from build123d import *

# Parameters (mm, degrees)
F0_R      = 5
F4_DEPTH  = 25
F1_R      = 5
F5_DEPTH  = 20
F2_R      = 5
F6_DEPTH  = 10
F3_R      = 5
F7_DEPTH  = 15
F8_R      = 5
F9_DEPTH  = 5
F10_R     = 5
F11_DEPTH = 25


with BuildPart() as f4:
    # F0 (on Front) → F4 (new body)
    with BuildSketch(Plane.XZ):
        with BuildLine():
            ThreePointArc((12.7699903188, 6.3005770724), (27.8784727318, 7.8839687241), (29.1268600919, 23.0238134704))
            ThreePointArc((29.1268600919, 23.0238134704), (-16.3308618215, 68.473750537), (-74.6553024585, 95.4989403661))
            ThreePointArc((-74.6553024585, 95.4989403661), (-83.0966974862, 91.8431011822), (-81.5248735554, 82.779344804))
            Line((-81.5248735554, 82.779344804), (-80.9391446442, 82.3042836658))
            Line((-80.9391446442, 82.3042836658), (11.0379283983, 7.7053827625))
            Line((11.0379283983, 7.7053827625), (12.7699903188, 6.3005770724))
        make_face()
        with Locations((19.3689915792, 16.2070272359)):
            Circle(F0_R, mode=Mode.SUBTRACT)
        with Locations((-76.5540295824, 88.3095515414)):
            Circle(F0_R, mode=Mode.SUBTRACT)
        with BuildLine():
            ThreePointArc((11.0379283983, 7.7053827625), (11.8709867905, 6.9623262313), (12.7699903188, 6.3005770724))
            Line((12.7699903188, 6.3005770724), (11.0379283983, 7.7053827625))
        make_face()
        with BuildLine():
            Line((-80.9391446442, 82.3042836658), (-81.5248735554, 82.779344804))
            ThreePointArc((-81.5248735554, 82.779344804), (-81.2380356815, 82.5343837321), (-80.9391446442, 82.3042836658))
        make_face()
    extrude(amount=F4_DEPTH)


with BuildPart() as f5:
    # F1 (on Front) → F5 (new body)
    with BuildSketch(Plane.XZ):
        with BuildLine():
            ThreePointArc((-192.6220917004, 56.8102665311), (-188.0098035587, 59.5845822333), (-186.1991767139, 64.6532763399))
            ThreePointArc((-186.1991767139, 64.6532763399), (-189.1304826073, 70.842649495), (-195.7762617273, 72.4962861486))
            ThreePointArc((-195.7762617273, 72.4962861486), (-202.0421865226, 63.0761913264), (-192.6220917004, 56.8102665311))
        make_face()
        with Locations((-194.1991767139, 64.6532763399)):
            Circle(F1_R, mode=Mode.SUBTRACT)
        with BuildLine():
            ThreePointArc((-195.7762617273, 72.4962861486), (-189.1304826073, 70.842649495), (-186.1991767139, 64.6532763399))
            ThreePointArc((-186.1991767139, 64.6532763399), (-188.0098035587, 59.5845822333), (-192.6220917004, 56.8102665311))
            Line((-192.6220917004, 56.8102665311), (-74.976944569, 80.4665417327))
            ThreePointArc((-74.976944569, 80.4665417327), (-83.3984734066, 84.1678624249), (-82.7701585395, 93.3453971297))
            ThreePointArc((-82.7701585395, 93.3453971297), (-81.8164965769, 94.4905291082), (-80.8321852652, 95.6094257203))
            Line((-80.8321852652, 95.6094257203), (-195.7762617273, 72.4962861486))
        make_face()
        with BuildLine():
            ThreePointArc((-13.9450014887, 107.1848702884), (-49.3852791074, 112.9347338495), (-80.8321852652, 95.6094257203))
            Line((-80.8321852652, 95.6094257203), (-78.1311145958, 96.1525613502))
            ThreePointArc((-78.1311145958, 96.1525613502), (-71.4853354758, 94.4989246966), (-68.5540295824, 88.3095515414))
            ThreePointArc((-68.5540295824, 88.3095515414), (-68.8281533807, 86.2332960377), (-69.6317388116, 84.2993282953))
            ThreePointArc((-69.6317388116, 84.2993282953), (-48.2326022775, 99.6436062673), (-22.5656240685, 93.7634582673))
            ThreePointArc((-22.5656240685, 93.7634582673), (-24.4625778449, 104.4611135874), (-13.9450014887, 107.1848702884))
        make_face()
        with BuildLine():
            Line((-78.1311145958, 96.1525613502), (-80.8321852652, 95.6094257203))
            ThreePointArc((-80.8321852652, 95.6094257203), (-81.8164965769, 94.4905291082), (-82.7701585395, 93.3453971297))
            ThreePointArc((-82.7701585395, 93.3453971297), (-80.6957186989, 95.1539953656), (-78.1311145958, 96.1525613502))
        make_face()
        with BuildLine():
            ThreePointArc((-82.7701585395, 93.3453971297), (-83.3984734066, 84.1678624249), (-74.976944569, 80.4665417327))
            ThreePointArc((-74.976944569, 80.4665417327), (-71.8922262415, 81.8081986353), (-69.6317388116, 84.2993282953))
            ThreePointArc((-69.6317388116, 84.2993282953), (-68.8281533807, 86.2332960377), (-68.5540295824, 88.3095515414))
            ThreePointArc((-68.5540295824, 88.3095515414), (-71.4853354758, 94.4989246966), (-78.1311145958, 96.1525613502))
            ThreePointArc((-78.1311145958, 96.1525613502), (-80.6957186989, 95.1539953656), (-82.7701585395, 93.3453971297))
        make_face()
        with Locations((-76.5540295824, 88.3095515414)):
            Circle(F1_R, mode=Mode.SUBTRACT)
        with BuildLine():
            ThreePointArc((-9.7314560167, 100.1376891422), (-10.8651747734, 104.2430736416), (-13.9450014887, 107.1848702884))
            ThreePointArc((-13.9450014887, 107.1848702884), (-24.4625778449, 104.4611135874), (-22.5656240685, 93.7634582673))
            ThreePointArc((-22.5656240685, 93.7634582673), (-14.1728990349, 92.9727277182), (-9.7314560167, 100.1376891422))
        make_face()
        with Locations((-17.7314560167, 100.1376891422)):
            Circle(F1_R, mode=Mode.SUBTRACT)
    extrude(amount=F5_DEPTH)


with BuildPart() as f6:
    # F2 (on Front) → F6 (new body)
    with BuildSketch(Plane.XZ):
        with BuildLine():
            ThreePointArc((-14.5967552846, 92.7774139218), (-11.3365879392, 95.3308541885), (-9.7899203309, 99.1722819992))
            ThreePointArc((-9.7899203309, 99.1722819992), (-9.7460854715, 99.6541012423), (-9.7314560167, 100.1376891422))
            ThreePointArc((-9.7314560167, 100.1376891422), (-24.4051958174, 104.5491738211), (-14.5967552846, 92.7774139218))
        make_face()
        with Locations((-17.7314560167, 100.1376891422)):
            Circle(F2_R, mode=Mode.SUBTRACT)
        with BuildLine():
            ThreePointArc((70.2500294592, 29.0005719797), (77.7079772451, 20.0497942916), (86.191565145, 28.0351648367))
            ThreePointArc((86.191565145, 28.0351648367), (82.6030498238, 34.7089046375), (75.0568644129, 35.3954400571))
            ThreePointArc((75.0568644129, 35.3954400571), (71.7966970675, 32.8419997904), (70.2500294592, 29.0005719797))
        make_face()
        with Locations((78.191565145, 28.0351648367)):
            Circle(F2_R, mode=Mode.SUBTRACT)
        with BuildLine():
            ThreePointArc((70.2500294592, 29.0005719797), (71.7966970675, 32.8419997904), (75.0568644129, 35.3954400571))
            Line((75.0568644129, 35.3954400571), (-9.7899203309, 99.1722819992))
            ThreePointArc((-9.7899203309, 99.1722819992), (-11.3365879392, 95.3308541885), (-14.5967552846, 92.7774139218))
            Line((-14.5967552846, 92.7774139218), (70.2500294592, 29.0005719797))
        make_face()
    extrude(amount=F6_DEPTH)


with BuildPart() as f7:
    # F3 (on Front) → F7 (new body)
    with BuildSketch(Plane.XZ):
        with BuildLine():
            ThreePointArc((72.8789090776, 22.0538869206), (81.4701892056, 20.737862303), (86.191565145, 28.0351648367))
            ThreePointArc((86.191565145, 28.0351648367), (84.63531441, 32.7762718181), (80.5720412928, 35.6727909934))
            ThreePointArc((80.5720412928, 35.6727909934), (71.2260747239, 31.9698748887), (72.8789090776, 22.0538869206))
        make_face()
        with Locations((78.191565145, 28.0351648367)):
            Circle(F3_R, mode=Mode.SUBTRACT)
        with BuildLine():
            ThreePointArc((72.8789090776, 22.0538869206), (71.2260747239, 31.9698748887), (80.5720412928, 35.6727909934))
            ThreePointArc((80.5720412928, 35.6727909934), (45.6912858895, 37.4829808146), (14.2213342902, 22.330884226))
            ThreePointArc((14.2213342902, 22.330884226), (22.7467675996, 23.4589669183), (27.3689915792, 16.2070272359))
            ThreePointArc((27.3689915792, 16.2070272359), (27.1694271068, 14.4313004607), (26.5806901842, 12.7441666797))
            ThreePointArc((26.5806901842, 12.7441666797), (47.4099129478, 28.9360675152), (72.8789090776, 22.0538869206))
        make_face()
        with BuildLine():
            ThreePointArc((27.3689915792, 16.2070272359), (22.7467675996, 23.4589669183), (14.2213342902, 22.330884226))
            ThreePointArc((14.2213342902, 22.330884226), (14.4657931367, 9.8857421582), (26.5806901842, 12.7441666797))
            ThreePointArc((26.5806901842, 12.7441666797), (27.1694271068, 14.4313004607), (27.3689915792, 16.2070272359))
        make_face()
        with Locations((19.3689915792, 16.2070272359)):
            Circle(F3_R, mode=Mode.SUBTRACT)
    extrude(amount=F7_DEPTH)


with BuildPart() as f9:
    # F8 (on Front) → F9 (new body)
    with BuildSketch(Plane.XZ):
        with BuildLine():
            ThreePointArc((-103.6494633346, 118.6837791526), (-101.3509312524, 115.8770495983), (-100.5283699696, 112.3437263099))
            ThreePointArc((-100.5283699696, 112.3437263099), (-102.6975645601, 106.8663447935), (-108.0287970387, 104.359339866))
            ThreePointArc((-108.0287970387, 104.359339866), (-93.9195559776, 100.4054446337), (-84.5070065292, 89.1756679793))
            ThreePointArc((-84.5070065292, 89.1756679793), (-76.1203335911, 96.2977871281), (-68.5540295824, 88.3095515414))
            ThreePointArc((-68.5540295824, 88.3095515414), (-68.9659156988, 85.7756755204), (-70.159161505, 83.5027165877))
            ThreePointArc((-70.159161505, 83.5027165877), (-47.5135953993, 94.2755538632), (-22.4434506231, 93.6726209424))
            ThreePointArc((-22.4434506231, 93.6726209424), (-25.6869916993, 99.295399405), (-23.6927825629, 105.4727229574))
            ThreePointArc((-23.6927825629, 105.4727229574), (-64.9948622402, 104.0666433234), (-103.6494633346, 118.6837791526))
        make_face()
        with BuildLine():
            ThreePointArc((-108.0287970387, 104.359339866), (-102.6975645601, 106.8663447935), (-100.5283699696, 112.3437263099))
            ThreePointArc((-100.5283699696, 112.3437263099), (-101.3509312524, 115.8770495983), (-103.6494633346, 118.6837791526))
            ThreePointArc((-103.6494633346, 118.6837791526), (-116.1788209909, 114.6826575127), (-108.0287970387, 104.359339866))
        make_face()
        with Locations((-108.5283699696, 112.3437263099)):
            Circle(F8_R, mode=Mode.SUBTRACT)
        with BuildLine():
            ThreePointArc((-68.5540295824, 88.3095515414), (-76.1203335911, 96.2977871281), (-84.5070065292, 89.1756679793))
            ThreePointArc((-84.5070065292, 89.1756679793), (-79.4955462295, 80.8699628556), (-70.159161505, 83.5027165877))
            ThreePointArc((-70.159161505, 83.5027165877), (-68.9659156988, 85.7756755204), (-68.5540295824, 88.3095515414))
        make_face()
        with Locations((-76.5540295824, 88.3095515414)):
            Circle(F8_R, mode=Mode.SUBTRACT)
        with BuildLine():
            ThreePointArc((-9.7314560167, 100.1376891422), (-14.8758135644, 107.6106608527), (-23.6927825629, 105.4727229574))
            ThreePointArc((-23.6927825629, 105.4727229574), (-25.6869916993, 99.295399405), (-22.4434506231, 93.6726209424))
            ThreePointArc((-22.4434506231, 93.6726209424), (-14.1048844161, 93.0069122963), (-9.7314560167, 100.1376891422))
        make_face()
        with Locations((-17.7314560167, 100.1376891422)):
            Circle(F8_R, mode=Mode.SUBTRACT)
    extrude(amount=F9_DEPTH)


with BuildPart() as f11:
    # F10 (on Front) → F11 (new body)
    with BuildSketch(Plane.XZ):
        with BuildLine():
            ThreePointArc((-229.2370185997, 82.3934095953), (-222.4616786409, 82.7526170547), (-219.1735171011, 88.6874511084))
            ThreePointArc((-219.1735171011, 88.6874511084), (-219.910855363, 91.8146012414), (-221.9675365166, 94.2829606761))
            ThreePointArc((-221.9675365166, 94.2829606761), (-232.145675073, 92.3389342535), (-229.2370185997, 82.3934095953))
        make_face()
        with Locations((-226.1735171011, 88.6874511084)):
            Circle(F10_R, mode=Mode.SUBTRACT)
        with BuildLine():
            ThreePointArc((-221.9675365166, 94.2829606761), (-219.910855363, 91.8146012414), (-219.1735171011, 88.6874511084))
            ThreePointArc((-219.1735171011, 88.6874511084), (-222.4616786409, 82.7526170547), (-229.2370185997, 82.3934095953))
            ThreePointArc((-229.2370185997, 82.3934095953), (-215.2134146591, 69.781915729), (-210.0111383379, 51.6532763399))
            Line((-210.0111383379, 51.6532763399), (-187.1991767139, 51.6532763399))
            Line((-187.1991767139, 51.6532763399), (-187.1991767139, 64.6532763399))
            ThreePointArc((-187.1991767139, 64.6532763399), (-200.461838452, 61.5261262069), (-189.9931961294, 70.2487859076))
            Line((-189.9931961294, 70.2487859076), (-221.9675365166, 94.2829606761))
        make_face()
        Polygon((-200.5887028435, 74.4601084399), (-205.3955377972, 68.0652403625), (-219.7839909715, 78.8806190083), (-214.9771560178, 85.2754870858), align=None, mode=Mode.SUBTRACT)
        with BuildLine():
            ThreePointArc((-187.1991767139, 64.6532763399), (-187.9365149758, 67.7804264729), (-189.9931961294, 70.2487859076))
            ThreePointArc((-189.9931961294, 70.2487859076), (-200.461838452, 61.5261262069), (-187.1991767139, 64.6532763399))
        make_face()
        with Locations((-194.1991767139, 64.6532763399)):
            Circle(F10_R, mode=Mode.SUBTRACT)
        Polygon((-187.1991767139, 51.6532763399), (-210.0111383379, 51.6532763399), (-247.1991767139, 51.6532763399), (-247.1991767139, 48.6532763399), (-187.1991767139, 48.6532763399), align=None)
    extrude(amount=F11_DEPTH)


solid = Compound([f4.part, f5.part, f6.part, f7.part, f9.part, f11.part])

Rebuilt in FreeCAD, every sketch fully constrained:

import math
import FreeCAD as App
import Part
import Sketcher

V = App.Vector


def add_polygon(sketch, points):
    """Adds a closed chain of lines whose ends are joined by coincident constraints."""
    first, n = sketch.GeometryCount, len(points)
    for a, b in zip(points, points[1:] + points[:1]):
        sketch.addGeometry(Part.LineSegment(App.Vector(*a, 0), App.Vector(*b, 0)), False)
    for i in range(n):
        sketch.addConstraint(Sketcher.Constraint("Coincident", first + i, 2, first + (i + 1) % n, 1))

doc = App.newDocument("Part")
body = doc.addObject("PartDesign::Body", "Body")

sketch1 = body.newObject("Sketcher::SketchObject", "Sketch")
sketch1.AttachmentSupport = (doc.getObject("XZ_Plane"), [""])
sketch1.MapMode = "FlatFace"
sketch1.addGeometry(Part.ArcOfCircle(Part.Circle(V(19.368992, 16.207027, 0), V(0, 0, 1), 11.903133), math.radians(-123.668845), math.radians(34.93791)), False)
sketch1.addGeometry(Part.ArcOfCircle(Part.Circle(V(-121.606274, -82.277416, 0), V(0, 0, 1), 183.871767), math.radians(34.93791), math.radians(75.205895)), False)
sketch1.addGeometry(Part.ArcOfCircle(Part.Circle(V(-76.55403, 88.309552, 0), V(0, 0, 1), 7.435891), math.radians(75.205895), math.radians(228.049111)), False)
sketch1.addGeometry(Part.ArcOfCircle(Part.Circle(V(-76.55403, 88.309552, 0), V(0, 0, 1), 7.435891), math.radians(-131.950889), math.radians(-126.137345)), False)
sketch1.addGeometry(Part.LineSegment(V(-80.939145, 82.304284, 0), V(11.037928, 7.705383, 0)), False)
sketch1.addGeometry(Part.ArcOfCircle(Part.Circle(V(19.368992, 16.207027, 0), V(0, 0, 1), 11.903133), math.radians(-134.419389), math.radians(-123.668845)), False)
sketch1.addGeometry(Part.Circle(V(19.368992, 16.207027, 0), V(0, 0, 1), 5), False)
sketch1.addGeometry(Part.Circle(V(-76.55403, 88.309552, 0), V(0, 0, 1), 5), False)
sketch1.addConstraint(Sketcher.Constraint("Tangent", 0, 2, 1, 1))
sketch1.addConstraint(Sketcher.Constraint("Tangent", 1, 2, 2, 1))
sketch1.addConstraint(Sketcher.Constraint("Tangent", 2, 2, 3, 1))
sketch1.addConstraint(Sketcher.Constraint("Coincident", 3, 2, 4, 1))
sketch1.addConstraint(Sketcher.Constraint("Coincident", 4, 2, 5, 1))
sketch1.addConstraint(Sketcher.Constraint("Tangent", 5, 2, 0, 1))
sketch1.addConstraint(Sketcher.Constraint("Coincident", 6, 3, 0, 3))
sketch1.addConstraint(Sketcher.Constraint("Coincident", 7, 3, 2, 3))
sketch1.addConstraint(Sketcher.Constraint("Equal", 2, 3))
sketch1.addConstraint(Sketcher.Constraint("Equal", 0, 5))
sketch1.addConstraint(Sketcher.Constraint("Equal", 6, 7))
sketch1.addConstraint(Sketcher.Constraint("Diameter", 6, 10.0))
sketch1.addConstraint(Sketcher.Constraint("Radius", 2, 7.435891))
sketch1.addConstraint(Sketcher.Constraint("Radius", 0, 11.903133))
sketch1.addConstraint(Sketcher.Constraint("Radius", 1, 183.871767))
sketch1.addConstraint(Sketcher.Constraint("DistanceX", 5, 2, 0, 3, 6.599001))
sketch1.addConstraint(Sketcher.Constraint("DistanceY", 4, 2, 3, 2, 74.598901))
sketch1.addConstraint(Sketcher.Constraint("DistanceX", -1, 1, 0, 3, 19.368992))
sketch1.addConstraint(Sketcher.Constraint("DistanceX", 2, 3, -1, 1, 76.55403))
sketch1.addConstraint(Sketcher.Constraint("DistanceY", -1, 1, 2, 3, 88.309552))
sketch1.addConstraint(Sketcher.Constraint("DistanceX", -1, 1, 0, 2, 29.12686))
sketch1.addConstraint(Sketcher.Constraint("DistanceX", -1, 1, 4, 2, 11.037928))
sketch1.addConstraint(Sketcher.Constraint("DistanceX", 2, 2, 1, 2, 6.869571))
pad1 = body.newObject("PartDesign::Pad", "Pad")
pad1.Profile = sketch1
pad1.Length = 25
body2 = doc.addObject("PartDesign::Body", "Body001")

sketch2 = body2.newObject("Sketcher::SketchObject", "Sketch001")
sketch2.AttachmentSupport = (doc.getObject("XZ_Plane001"), [""])
sketch2.MapMode = "FlatFace"
sketch2.addGeometry(Part.ArcOfCircle(Part.Circle(V(-194.199177, 64.653276, 0), V(0, 0, 1), 8), math.radians(101.369508), math.radians(281.369508)), False)
sketch2.addGeometry(Part.LineSegment(V(-192.622092, 56.810267, 0), V(-74.976945, 80.466542, 0)), False)
sketch2.addGeometry(Part.ArcOfCircle(Part.Circle(V(-76.55403, 88.309552, 0), V(0, 0, 1), 8), math.radians(-78.630492), math.radians(-30.084582)), False)
sketch2.addGeometry(Part.ArcOfCircle(Part.Circle(V(-41.918859, 68.244696, 0), V(0, 0, 1), 32.027409), math.radians(52.823598), math.radians(149.915418)), False)
sketch2.addGeometry(Part.ArcOfCircle(Part.Circle(V(-17.731456, 100.137689, 0), V(0, 0, 1), 8), math.radians(-127.176402), math.radians(0)), False)
sketch2.addGeometry(Part.ArcOfCircle(Part.Circle(V(-17.731456, 100.137689, 0), V(0, 0, 1), 8), math.radians(0), math.radians(61.750836)), False)
sketch2.addGeometry(Part.ArcOfCircle(Part.Circle(V(-39.998603, 58.695063, 0), V(0, 0, 1), 55.045905), math.radians(61.750836), math.radians(137.885797)), False)
sketch2.addGeometry(Part.LineSegment(V(-80.832185, 95.609426, 0), V(-195.776262, 72.496286, 0)), False)
sketch2.addGeometry(Part.Circle(V(-194.199177, 64.653276, 0), V(0, 0, 1), 5), False)
sketch2.addGeometry(Part.Circle(V(-76.55403, 88.309552, 0), V(0, 0, 1), 5), False)
sketch2.addGeometry(Part.Circle(V(-17.731456, 100.137689, 0), V(0, 0, 1), 5), False)
sketch2.addConstraint(Sketcher.Constraint("Tangent", 0, 2, 1, 1))
sketch2.addConstraint(Sketcher.Constraint("Tangent", 1, 2, 2, 1))
sketch2.addConstraint(Sketcher.Constraint("Tangent", 2, 2, 3, 2))
sketch2.addConstraint(Sketcher.Constraint("Tangent", 3, 1, 4, 1))
sketch2.addConstraint(Sketcher.Constraint("Tangent", 4, 2, 5, 1))
sketch2.addConstraint(Sketcher.Constraint("Tangent", 5, 2, 6, 1))
sketch2.addConstraint(Sketcher.Constraint("Coincident", 6, 2, 7, 1))
sketch2.addConstraint(Sketcher.Constraint("Tangent", 7, 2, 0, 1))
sketch2.addConstraint(Sketcher.Constraint("Coincident", 8, 3, 0, 3))
sketch2.addConstraint(Sketcher.Constraint("Coincident", 9, 3, 2, 3))
sketch2.addConstraint(Sketcher.Constraint("Coincident", 10, 3, 4, 3))
sketch2.addConstraint(Sketcher.Constraint("Equal", 0, 2))
sketch2.addConstraint(Sketcher.Constraint("Equal", 2, 4))
sketch2.addConstraint(Sketcher.Constraint("Equal", 4, 5))
sketch2.addConstraint(Sketcher.Constraint("Equal", 8, 9))
sketch2.addConstraint(Sketcher.Constraint("Equal", 9, 10))
sketch2.addConstraint(Sketcher.Constraint("Parallel", 1, 7))
sketch2.addConstraint(Sketcher.Constraint("Horizontal", 10, 3, 4, 2))
sketch2.addConstraint(Sketcher.Constraint("Diameter", 8, 10.0))
sketch2.addConstraint(Sketcher.Constraint("Radius", 0, 8.0))
sketch2.addConstraint(Sketcher.Constraint("Distance", 1, 120.0))
sketch2.addConstraint(Sketcher.Constraint("Radius", 3, 32.027409))
sketch2.addConstraint(Sketcher.Constraint("DistanceX", 5, 2, -1, 1, 13.945001))
sketch2.addConstraint(Sketcher.Constraint("Radius", 6, 55.045905))
sketch2.addConstraint(Sketcher.Constraint("DistanceX", 2, 3, -1, 1, 76.55403))
sketch2.addConstraint(Sketcher.Constraint("DistanceY", -1, 1, 2, 3, 88.309552))
sketch2.addConstraint(Sketcher.Constraint("DistanceX", 3, 3, -1, 1, 41.918859))
sketch2.addConstraint(Sketcher.Constraint("DistanceY", -1, 1, 4, 3, 100.137689))
sketch2.addConstraint(Sketcher.Constraint("DistanceX", 0, 2, -1, 1, 192.622092))
pad2 = body2.newObject("PartDesign::Pad", "Pad001")
pad2.Profile = sketch2
pad2.Length = 20
body3 = doc.addObject("PartDesign::Body", "Body002")

sketch3 = body3.newObject("Sketcher::SketchObject", "Sketch002")
sketch3.AttachmentSupport = (doc.getObject("XZ_Plane002"), [""])
sketch3.MapMode = "FlatFace"
sketch3.addGeometry(Part.ArcOfCircle(Part.Circle(V(-17.731456, 100.137689, 0), V(0, 0, 1), 8), math.radians(0), math.radians(293.068888)), False)
sketch3.addGeometry(Part.LineSegment(V(-14.596755, 92.777414, 0), V(70.250029, 29.000572, 0)), False)
sketch3.addGeometry(Part.ArcOfCircle(Part.Circle(V(78.191565, 28.035165, 0), V(0, 0, 1), 8), math.radians(173.068888), math.radians(360)), False)
sketch3.addGeometry(Part.ArcOfCircle(Part.Circle(V(78.191565, 28.035165, 0), V(0, 0, 1), 8), math.radians(0), math.radians(113.068888)), False)
sketch3.addGeometry(Part.LineSegment(V(75.056864, 35.39544, 0), V(-9.78992, 99.172282, 0)), False)
sketch3.addGeometry(Part.ArcOfCircle(Part.Circle(V(-17.731456, 100.137689, 0), V(0, 0, 1), 8), math.radians(-6.931112), math.radians(0)), False)
sketch3.addGeometry(Part.Circle(V(-17.731456, 100.137689, 0), V(0, 0, 1), 5), False)
sketch3.addGeometry(Part.Circle(V(78.191565, 28.035165, 0), V(0, 0, 1), 5), False)
sketch3.addConstraint(Sketcher.Constraint("Coincident", 0, 2, 1, 1))
sketch3.addConstraint(Sketcher.Constraint("Coincident", 1, 2, 2, 1))
sketch3.addConstraint(Sketcher.Constraint("Tangent", 2, 2, 3, 1))
sketch3.addConstraint(Sketcher.Constraint("Coincident", 3, 2, 4, 1))
sketch3.addConstraint(Sketcher.Constraint("Coincident", 4, 2, 5, 1))
sketch3.addConstraint(Sketcher.Constraint("Tangent", 5, 2, 0, 1))
sketch3.addConstraint(Sketcher.Constraint("Coincident", 6, 3, 0, 3))
sketch3.addConstraint(Sketcher.Constraint("Coincident", 7, 3, 2, 3))
sketch3.addConstraint(Sketcher.Constraint("Equal", 0, 2))
sketch3.addConstraint(Sketcher.Constraint("Equal", 2, 3))
sketch3.addConstraint(Sketcher.Constraint("Equal", 3, 5))
sketch3.addConstraint(Sketcher.Constraint("Equal", 6, 7))
sketch3.addConstraint(Sketcher.Constraint("Parallel", 1, 4))
sketch3.addConstraint(Sketcher.Constraint("Horizontal", 7, 3, 2, 2))
sketch3.addConstraint(Sketcher.Constraint("Horizontal", 6, 3, 5, 2))
sketch3.addConstraint(Sketcher.Constraint("Equal", 1, 4))
sketch3.addConstraint(Sketcher.Constraint("Diameter", 6, 10.0))
sketch3.addConstraint(Sketcher.Constraint("Radius", 0, 8.0))
sketch3.addConstraint(Sketcher.Constraint("DistanceX", 5, 3, 0, 2, 3.134701))
sketch3.addConstraint(Sketcher.Constraint("DistanceY", -1, 1, 0, 3, 100.137689))
sketch3.addConstraint(Sketcher.Constraint("DistanceX", -1, 1, 1, 2, 70.250029))
sketch3.addConstraint(Sketcher.Constraint("DistanceY", -1, 1, 1, 2, 29.000572))
sketch3.addConstraint(Sketcher.Constraint("DistanceY", -1, 1, 3, 2, 35.39544))
sketch3.addConstraint(Sketcher.Constraint("DistanceX", 4, 2, -1, 1, 9.78992))
pad3 = body3.newObject("PartDesign::Pad", "Pad002")
pad3.Profile = sketch3
pad3.Length = 10
body4 = doc.addObject("PartDesign::Body", "Body003")

sketch4 = body4.newObject("Sketcher::SketchObject", "Sketch003")
sketch4.AttachmentSupport = (doc.getObject("XZ_Plane003"), [""])
sketch4.MapMode = "FlatFace"
sketch4.addGeometry(Part.ArcOfCircle(Part.Circle(V(78.191565, 28.035165, 0), V(0, 0, 1), 8), math.radians(-131.611938), math.radians(0)), False)
sketch4.addGeometry(Part.ArcOfCircle(Part.Circle(V(78.191565, 28.035165, 0), V(0, 0, 1), 8), math.radians(0), math.radians(72.688919)), False)
sketch4.addGeometry(Part.ArcOfCircle(Part.Circle(V(59.59124, -31.642952, 0), V(0, 0, 1), 70.509597), math.radians(72.688919), math.radians(130.050097)), False)
sketch4.addGeometry(Part.ArcOfCircle(Part.Circle(V(19.368992, 16.207027, 0), V(0, 0, 1), 8), math.radians(130.050097), math.radians(334.350954)), False)
sketch4.addGeometry(Part.ArcOfCircle(Part.Circle(V(53.239852, -0.056834, 0), V(0, 0, 1), 29.57324), math.radians(48.388062), math.radians(154.350954)), False)
sketch4.addGeometry(Part.Circle(V(19.368992, 16.207027, 0), V(0, 0, 1), 5), False)
sketch4.addGeometry(Part.Circle(V(78.191565, 28.035165, 0), V(0, 0, 1), 5), False)
sketch4.addConstraint(Sketcher.Constraint("Tangent", 0, 2, 1, 1))
sketch4.addConstraint(Sketcher.Constraint("Tangent", 1, 2, 2, 1))
sketch4.addConstraint(Sketcher.Constraint("Tangent", 2, 2, 3, 1))
sketch4.addConstraint(Sketcher.Constraint("Tangent", 3, 2, 4, 2))
sketch4.addConstraint(Sketcher.Constraint("Tangent", 4, 1, 0, 1))
sketch4.addConstraint(Sketcher.Constraint("Coincident", 5, 3, 3, 3))
sketch4.addConstraint(Sketcher.Constraint("Coincident", 6, 3, 0, 3))
sketch4.addConstraint(Sketcher.Constraint("Equal", 0, 1))
sketch4.addConstraint(Sketcher.Constraint("Equal", 1, 3))
sketch4.addConstraint(Sketcher.Constraint("Equal", 5, 6))
sketch4.addConstraint(Sketcher.Constraint("Horizontal", 6, 3, 0, 2))
sketch4.addConstraint(Sketcher.Constraint("Diameter", 5, 10.0))
sketch4.addConstraint(Sketcher.Constraint("Radius", 0, 8.0))
sketch4.addConstraint(Sketcher.Constraint("Radius", 4, 29.57324))
sketch4.addConstraint(Sketcher.Constraint("Radius", 2, 70.509597))
sketch4.addConstraint(Sketcher.Constraint("DistanceY", 4, 3, 0, 3, 28.091999))
sketch4.addConstraint(Sketcher.Constraint("DistanceY", 4, 3, 3, 2, 12.801001))
sketch4.addConstraint(Sketcher.Constraint("DistanceX", -1, 1, 2, 3, 59.59124))
sketch4.addConstraint(Sketcher.Constraint("DistanceY", 2, 3, -1, 1, 31.642952))
pad4 = body4.newObject("PartDesign::Pad", "Pad003")
pad4.Profile = sketch4
pad4.Length = 15
body5 = doc.addObject("PartDesign::Body", "Body004")

sketch5 = body5.newObject("Sketcher::SketchObject", "Sketch004")
sketch5.AttachmentSupport = (doc.getObject("XZ_Plane004"), [""])
sketch5.MapMode = "FlatFace"
sketch5.addGeometry(Part.ArcOfCircle(Part.Circle(V(-107.36534, 79.575904, 0), V(0, 0, 1), 24.792315), math.radians(22.780838), math.radians(91.533452)), False)
sketch5.addGeometry(Part.ArcOfCircle(Part.Circle(V(-76.55403, 88.309552, 0), V(0, 0, 1), 8), math.radians(173.784716), math.radians(323.068888)), False)
sketch5.addGeometry(Part.ArcOfCircle(Part.Circle(V(-36.243025, 41.395679, 0), V(0, 0, 1), 54.067614), math.radians(75.212898), math.radians(128.850551)), False)
sketch5.addGeometry(Part.ArcOfCircle(Part.Circle(V(-17.731456, 100.137689, 0), V(0, 0, 1), 8), math.radians(-126.086029), math.radians(0)), False)
sketch5.addGeometry(Part.ArcOfCircle(Part.Circle(V(-17.731456, 100.137689, 0), V(0, 0, 1), 8), math.radians(0), math.radians(138.173343)), False)
sketch5.addGeometry(Part.ArcOfCircle(Part.Circle(V(-47.852028, 207.819449, 0), V(0, 0, 1), 105.159505), math.radians(-122.045876), math.radians(-76.718291)), False)
sketch5.addGeometry(Part.ArcOfCircle(Part.Circle(V(-108.52837, 112.343726, 0), V(0, 0, 1), 8), math.radians(52.420379), math.radians(273.580257)), False)
sketch5.addGeometry(Part.Circle(V(-76.55403, 88.309552, 0), V(0, 0, 1), 5), False)
sketch5.addGeometry(Part.Circle(V(-17.731456, 100.137689, 0), V(0, 0, 1), 5), False)
sketch5.addGeometry(Part.Circle(V(-108.52837, 112.343726, 0), V(0, 0, 1), 5), False)
sketch5.addConstraint(Sketcher.Constraint("Coincident", 0, 1, 1, 1))
sketch5.addConstraint(Sketcher.Constraint("Coincident", 1, 2, 2, 2))
sketch5.addConstraint(Sketcher.Constraint("Coincident", 2, 1, 3, 1))
sketch5.addConstraint(Sketcher.Constraint("Tangent", 3, 2, 4, 1))
sketch5.addConstraint(Sketcher.Constraint("Coincident", 4, 2, 5, 2))
sketch5.addConstraint(Sketcher.Constraint("Coincident", 5, 1, 6, 1))
sketch5.addConstraint(Sketcher.Constraint("Coincident", 6, 2, 0, 2))
sketch5.addConstraint(Sketcher.Constraint("Coincident", 7, 3, 1, 3))
sketch5.addConstraint(Sketcher.Constraint("Coincident", 8, 3, 3, 3))
sketch5.addConstraint(Sketcher.Constraint("Coincident", 9, 3, 6, 3))
sketch5.addConstraint(Sketcher.Constraint("Equal", 1, 3))
sketch5.addConstraint(Sketcher.Constraint("Equal", 3, 4))
sketch5.addConstraint(Sketcher.Constraint("Equal", 4, 6))
sketch5.addConstraint(Sketcher.Constraint("Equal", 7, 8))
sketch5.addConstraint(Sketcher.Constraint("Equal", 8, 9))
sketch5.addConstraint(Sketcher.Constraint("Horizontal", 8, 3, 3, 2))
sketch5.addConstraint(Sketcher.Constraint("Diameter", 7, 10.0))
sketch5.addConstraint(Sketcher.Constraint("Radius", 1, 8.0))
sketch5.addConstraint(Sketcher.Constraint("Radius", 0, 24.792315))
sketch5.addConstraint(Sketcher.Constraint("Radius", 2, 54.067614))
sketch5.addConstraint(Sketcher.Constraint("Radius", 5, 105.159505))
sketch5.addConstraint(Sketcher.Constraint("DistanceX", 1, 3, 5, 3, 28.702002))
sketch5.addConstraint(Sketcher.Constraint("DistanceX", 0, 3, -1, 1, 107.36534))
sketch5.addConstraint(Sketcher.Constraint("DistanceX", 1, 3, -1, 1, 76.55403))
sketch5.addConstraint(Sketcher.Constraint("DistanceY", -1, 1, 1, 3, 88.309552))
sketch5.addConstraint(Sketcher.Constraint("DistanceY", -1, 1, 2, 3, 41.395679))
sketch5.addConstraint(Sketcher.Constraint("DistanceY", -1, 1, 3, 3, 100.137689))
sketch5.addConstraint(Sketcher.Constraint("DistanceY", -1, 1, 5, 3, 207.819449))
sketch5.addConstraint(Sketcher.Constraint("DistanceX", 6, 3, -1, 1, 108.52837))
sketch5.addConstraint(Sketcher.Constraint("DistanceX", 1, 2, -1, 1, 70.159162))
sketch5.addConstraint(Sketcher.Constraint("DistanceX", 2, 1, -1, 1, 22.443451))
sketch5.addConstraint(Sketcher.Constraint("DistanceY", -1, 1, 5, 1, 118.683779))
sketch5.addConstraint(Sketcher.Constraint("DistanceY", -1, 1, 6, 2, 104.35934))
pad5 = body5.newObject("PartDesign::Pad", "Pad004")
pad5.Profile = sketch5
pad5.Length = 5
body6 = doc.addObject("PartDesign::Body", "Body005")

sketch6 = body6.newObject("Sketcher::SketchObject", "Sketch005")
sketch6.AttachmentSupport = (doc.getObject("XZ_Plane005"), [""])
sketch6.MapMode = "FlatFace"
sketch6.addGeometry(Part.ArcOfCircle(Part.Circle(V(-226.173517, 88.687451, 0), V(0, 0, 1), 7), math.radians(53.068888), math.radians(244.046404)), False)
sketch6.addGeometry(Part.ArcOfCircle(Part.Circle(V(-244.199177, 51.653276, 0), V(0, 0, 1), 34.188038), math.radians(0), math.radians(64.046404)), False)
sketch6.addGeometry(Part.LineSegment(V(-210.011138, 51.653276, 0), V(-247.199177, 51.653276, 0)), False)
sketch6.addGeometry(Part.LineSegment(V(-247.199177, 51.653276, 0), V(-247.199177, 48.653276, 0)), False)
sketch6.addGeometry(Part.LineSegment(V(-247.199177, 48.653276, 0), V(-187.199177, 48.653276, 0)), False)
sketch6.addGeometry(Part.LineSegment(V(-187.199177, 48.653276, 0), V(-187.199177, 64.653276, 0)), False)
sketch6.addGeometry(Part.ArcOfCircle(Part.Circle(V(-194.199177, 64.653276, 0), V(0, 0, 1), 7), math.radians(0), math.radians(53.068888)), False)
sketch6.addGeometry(Part.LineSegment(V(-189.993196, 70.248786, 0), V(-221.967537, 94.282961, 0)), False)
sketch6.addGeometry(Part.Circle(V(-194.199177, 64.653276, 0), V(0, 0, 1), 5), False)
add_polygon(sketch6, [(-214.977156, 85.275487), (-200.588703, 74.460108), (-205.395538, 68.06524), (-219.783991, 78.880619)])
sketch6.addGeometry(Part.Circle(V(-226.173517, 88.687451, 0), V(0, 0, 1), 5), False)
sketch6.addConstraint(Sketcher.Constraint("Tangent", 0, 2, 1, 2))
sketch6.addConstraint(Sketcher.Constraint("Coincident", 1, 1, 2, 1))
sketch6.addConstraint(Sketcher.Constraint("Coincident", 2, 2, 3, 1))
sketch6.addConstraint(Sketcher.Constraint("Coincident", 3, 2, 4, 1))
sketch6.addConstraint(Sketcher.Constraint("Coincident", 4, 2, 5, 1))
sketch6.addConstraint(Sketcher.Constraint("Tangent", 5, 2, 6, 1))
sketch6.addConstraint(Sketcher.Constraint("Tangent", 6, 2, 7, 1))
sketch6.addConstraint(Sketcher.Constraint("Tangent", 7, 2, 0, 1))
sketch6.addConstraint(Sketcher.Constraint("Horizontal", 2))
sketch6.addConstraint(Sketcher.Constraint("Vertical", 3))
sketch6.addConstraint(Sketcher.Constraint("Horizontal", 4))
sketch6.addConstraint(Sketcher.Constraint("Vertical", 5))
sketch6.addConstraint(Sketcher.Constraint("Coincident", 8, 3, 6, 3))
sketch6.addConstraint(Sketcher.Constraint("Coincident", 13, 3, 0, 3))
sketch6.addConstraint(Sketcher.Constraint("Equal", 0, 6))
sketch6.addConstraint(Sketcher.Constraint("Equal", 8, 13))
sketch6.addConstraint(Sketcher.Constraint("Parallel", 7, 9))
sketch6.addConstraint(Sketcher.Constraint("Perpendicular", 9, 10))
sketch6.addConstraint(Sketcher.Constraint("Perpendicular", 10, 11))
sketch6.addConstraint(Sketcher.Constraint("Perpendicular", 11, 12))
sketch6.addConstraint(Sketcher.Constraint("Diameter", 8, 10.0))
sketch6.addConstraint(Sketcher.Constraint("Radius", 0, 7.0))
sketch6.addConstraint(Sketcher.Constraint("DistanceX", 4, 1, 4, 2, 60.0))
sketch6.addConstraint(Sketcher.Constraint("DistanceY", 3, 2, 3, 1, 3.0))
sketch6.addConstraint(Sketcher.Constraint("DistanceY", 5, 1, 5, 2, 16.0))
sketch6.addConstraint(Sketcher.Constraint("Distance", 7, 40.0))
sketch6.addConstraint(Sketcher.Constraint("Distance", 9, 18.0))
sketch6.addConstraint(Sketcher.Constraint("Distance", 10, 8.0))
sketch6.addConstraint(Sketcher.Constraint("DistanceX", 1, 3, 6, 3, 50.0))
sketch6.addConstraint(Sketcher.Constraint("DistanceY", 1, 3, 6, 3, 13.0))
sketch6.addConstraint(Sketcher.Constraint("Radius", 1, 34.188038))
sketch6.addConstraint(Sketcher.Constraint("DistanceX", 1, 1, 10, 2, 4.615601))
sketch6.addConstraint(Sketcher.Constraint("DistanceY", -1, 1, 0, 3, 88.687451))
sketch6.addConstraint(Sketcher.Constraint("DistanceX", 0, 2, -1, 1, 229.237019))
sketch6.addConstraint(Sketcher.Constraint("DistanceY", -1, 1, 9, 2, 74.460108))
pad6 = body6.newObject("PartDesign::Pad", "Pad005")
pad6.Profile = sketch6
pad6.Length = 25

doc.recompute()
